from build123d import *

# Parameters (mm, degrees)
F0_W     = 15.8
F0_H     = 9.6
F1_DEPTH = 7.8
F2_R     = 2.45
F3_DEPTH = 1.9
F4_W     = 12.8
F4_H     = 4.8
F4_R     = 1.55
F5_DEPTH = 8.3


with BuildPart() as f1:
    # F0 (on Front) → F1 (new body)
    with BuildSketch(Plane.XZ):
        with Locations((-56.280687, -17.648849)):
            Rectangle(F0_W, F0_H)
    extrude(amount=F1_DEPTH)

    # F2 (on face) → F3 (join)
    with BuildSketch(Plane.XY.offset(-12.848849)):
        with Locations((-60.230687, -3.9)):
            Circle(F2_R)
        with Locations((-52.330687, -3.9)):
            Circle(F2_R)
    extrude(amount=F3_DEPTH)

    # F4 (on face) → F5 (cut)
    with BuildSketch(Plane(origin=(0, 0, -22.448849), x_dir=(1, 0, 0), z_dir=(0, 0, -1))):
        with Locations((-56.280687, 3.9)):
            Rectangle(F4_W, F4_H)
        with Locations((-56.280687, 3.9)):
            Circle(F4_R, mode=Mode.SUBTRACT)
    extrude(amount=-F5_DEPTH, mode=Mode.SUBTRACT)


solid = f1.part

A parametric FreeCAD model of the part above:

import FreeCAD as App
import Part
import Sketcher
from FreeCAD import Vector


def add_polygon(sketch, points):
    """Adds a closed chain of lines whose ends are joined by coincident constraints."""
    first, n = sketch.GeometryCount, len(points)
    for a, b in zip(points, points[1:] + points[:1]):
        sketch.addGeometry(Part.LineSegment(App.Vector(*a, 0), App.Vector(*b, 0)), False)
    for i in range(n):
        sketch.addConstraint(Sketcher.Constraint("Coincident", first + i, 2, first + (i + 1) % n, 1))

doc = App.newDocument("Part")
body = doc.addObject("PartDesign::Body", "Body")

# Sketch on XZ plane
sketch1 = body.newObject("Sketcher::SketchObject", "Sketch")
sketch1.AttachmentSupport = (doc.getObject("XZ_Plane"), [""])
sketch1.MapMode = "FlatFace"
add_polygon(sketch1, [(-64, -13), (-64, -22), (-48, -22), (-48, -13)])  # lines 0-3
sketch1.addConstraint(Sketcher.Constraint("Vertical", 0))
sketch1.addConstraint(Sketcher.Constraint("Horizontal", 1))
sketch1.addConstraint(Sketcher.Constraint("Vertical", 2))
sketch1.addConstraint(Sketcher.Constraint("Horizontal", 3))
sketch1.addConstraint(Sketcher.Constraint("DistanceX", 1, 1, 1, 2, 15.8))
sketch1.addConstraint(Sketcher.Constraint("DistanceY", 0, 2, 0, 1, 9.6))
sketch1.addConstraint(Sketcher.Constraint("DistanceY", 0, 2, -1, 1, 22.448849))
sketch1.addConstraint(Sketcher.Constraint("DistanceX", 0, 2, -1, 1, 64.180687))
pad1 = body.newObject("PartDesign::Pad", "Pad")
pad1.Profile = sketch1
pad1.Length = 7.8

# Sketch on XY plane
sketch2 = body.newObject("Sketcher::SketchObject", "Sketch001")
sketch2.AttachmentSupport = (doc.getObject("XY_Plane"), [""])
sketch2.MapMode = "FlatFace"
sketch2.AttachmentOffset = App.Placement(Vector(0, 0, -12.848849), App.Rotation())
sketch2.addGeometry(Part.Circle(Vector(-60.2, -3.9, 0), Vector(0, 0, 1), 2.5), False)
sketch2.addGeometry(Part.Circle(Vector(-52.3, -3.9, 0), Vector(0, 0, 1), 2.5), False)
sketch2.addConstraint(Sketcher.Constraint("Equal", 0, 1))
sketch2.addConstraint(Sketcher.Constraint("Horizontal", 0, 3, 1, 3))
sketch2.addConstraint(Sketcher.Constraint("Diameter", 0, 4.9))
sketch2.addConstraint(Sketcher.Constraint("DistanceY", 0, 3, -1, 1, 3.9))
sketch2.addConstraint(Sketcher.Constraint("DistanceX", 0, 3, 1, 3, 7.9))
sketch2.addConstraint(Sketcher.Constraint("DistanceX", 0, 3, -1, 1, 60.230687))
pad2 = body.newObject("PartDesign::Pad", "Pad001")
pad2.Profile = sketch2
pad2.Length = 1.9

# Sketch on XY plane
sketch3 = body.newObject("Sketcher::SketchObject", "Sketch002")
sketch3.AttachmentSupport = (doc.getObject("XY_Plane"), [""])
sketch3.MapMode = "FlatFace"
sketch3.AttachmentOffset = App.Placement(Vector(0, 0, -22.448849), App.Rotation())
add_polygon(sketch3, [(-62.7, -6.3), (-62.7, -1.5), (-49.9, -1.5), (-49.9, -6.3)])  # lines 0-3
sketch3.addGeometry(Part.Circle(Vector(-56.3, -3.9, 0), Vector(0, 0, 1), 1.6), False)  # 4
sketch3.addConstraint(Sketcher.Constraint("Vertical", 0))
sketch3.addConstraint(Sketcher.Constraint("Horizontal", 1))
sketch3.addConstraint(Sketcher.Constraint("Vertical", 2))
sketch3.addConstraint(Sketcher.Constraint("Horizontal", 3))
sketch3.addConstraint(Sketcher.Constraint("Diameter", 4, 3.1))
sketch3.addConstraint(Sketcher.Constraint("DistanceX", 1, 1, 1, 2, 12.8))
sketch3.addConstraint(Sketcher.Constraint("DistanceY", 0, 1, 0, 2, 4.8))
sketch3.addConstraint(Sketcher.Constraint("DistanceY", 4, 3, -1, 1, 3.9))
sketch3.addConstraint(Sketcher.Constraint("DistanceY", 0, 2, -1, 1, 1.5))
sketch3.addConstraint(Sketcher.Constraint("DistanceX", 0, 2, 4, 3, 6.4))
sketch3.addConstraint(Sketcher.Constraint("DistanceX", 4, 3, -1, 1, 56.280687))
pocket1 = body.newObject("PartDesign::Pocket", "Pocket")
pocket1.Profile = sketch3
pocket1.Length = 8.3
pocket1.Reversed = True

doc.recompute()
